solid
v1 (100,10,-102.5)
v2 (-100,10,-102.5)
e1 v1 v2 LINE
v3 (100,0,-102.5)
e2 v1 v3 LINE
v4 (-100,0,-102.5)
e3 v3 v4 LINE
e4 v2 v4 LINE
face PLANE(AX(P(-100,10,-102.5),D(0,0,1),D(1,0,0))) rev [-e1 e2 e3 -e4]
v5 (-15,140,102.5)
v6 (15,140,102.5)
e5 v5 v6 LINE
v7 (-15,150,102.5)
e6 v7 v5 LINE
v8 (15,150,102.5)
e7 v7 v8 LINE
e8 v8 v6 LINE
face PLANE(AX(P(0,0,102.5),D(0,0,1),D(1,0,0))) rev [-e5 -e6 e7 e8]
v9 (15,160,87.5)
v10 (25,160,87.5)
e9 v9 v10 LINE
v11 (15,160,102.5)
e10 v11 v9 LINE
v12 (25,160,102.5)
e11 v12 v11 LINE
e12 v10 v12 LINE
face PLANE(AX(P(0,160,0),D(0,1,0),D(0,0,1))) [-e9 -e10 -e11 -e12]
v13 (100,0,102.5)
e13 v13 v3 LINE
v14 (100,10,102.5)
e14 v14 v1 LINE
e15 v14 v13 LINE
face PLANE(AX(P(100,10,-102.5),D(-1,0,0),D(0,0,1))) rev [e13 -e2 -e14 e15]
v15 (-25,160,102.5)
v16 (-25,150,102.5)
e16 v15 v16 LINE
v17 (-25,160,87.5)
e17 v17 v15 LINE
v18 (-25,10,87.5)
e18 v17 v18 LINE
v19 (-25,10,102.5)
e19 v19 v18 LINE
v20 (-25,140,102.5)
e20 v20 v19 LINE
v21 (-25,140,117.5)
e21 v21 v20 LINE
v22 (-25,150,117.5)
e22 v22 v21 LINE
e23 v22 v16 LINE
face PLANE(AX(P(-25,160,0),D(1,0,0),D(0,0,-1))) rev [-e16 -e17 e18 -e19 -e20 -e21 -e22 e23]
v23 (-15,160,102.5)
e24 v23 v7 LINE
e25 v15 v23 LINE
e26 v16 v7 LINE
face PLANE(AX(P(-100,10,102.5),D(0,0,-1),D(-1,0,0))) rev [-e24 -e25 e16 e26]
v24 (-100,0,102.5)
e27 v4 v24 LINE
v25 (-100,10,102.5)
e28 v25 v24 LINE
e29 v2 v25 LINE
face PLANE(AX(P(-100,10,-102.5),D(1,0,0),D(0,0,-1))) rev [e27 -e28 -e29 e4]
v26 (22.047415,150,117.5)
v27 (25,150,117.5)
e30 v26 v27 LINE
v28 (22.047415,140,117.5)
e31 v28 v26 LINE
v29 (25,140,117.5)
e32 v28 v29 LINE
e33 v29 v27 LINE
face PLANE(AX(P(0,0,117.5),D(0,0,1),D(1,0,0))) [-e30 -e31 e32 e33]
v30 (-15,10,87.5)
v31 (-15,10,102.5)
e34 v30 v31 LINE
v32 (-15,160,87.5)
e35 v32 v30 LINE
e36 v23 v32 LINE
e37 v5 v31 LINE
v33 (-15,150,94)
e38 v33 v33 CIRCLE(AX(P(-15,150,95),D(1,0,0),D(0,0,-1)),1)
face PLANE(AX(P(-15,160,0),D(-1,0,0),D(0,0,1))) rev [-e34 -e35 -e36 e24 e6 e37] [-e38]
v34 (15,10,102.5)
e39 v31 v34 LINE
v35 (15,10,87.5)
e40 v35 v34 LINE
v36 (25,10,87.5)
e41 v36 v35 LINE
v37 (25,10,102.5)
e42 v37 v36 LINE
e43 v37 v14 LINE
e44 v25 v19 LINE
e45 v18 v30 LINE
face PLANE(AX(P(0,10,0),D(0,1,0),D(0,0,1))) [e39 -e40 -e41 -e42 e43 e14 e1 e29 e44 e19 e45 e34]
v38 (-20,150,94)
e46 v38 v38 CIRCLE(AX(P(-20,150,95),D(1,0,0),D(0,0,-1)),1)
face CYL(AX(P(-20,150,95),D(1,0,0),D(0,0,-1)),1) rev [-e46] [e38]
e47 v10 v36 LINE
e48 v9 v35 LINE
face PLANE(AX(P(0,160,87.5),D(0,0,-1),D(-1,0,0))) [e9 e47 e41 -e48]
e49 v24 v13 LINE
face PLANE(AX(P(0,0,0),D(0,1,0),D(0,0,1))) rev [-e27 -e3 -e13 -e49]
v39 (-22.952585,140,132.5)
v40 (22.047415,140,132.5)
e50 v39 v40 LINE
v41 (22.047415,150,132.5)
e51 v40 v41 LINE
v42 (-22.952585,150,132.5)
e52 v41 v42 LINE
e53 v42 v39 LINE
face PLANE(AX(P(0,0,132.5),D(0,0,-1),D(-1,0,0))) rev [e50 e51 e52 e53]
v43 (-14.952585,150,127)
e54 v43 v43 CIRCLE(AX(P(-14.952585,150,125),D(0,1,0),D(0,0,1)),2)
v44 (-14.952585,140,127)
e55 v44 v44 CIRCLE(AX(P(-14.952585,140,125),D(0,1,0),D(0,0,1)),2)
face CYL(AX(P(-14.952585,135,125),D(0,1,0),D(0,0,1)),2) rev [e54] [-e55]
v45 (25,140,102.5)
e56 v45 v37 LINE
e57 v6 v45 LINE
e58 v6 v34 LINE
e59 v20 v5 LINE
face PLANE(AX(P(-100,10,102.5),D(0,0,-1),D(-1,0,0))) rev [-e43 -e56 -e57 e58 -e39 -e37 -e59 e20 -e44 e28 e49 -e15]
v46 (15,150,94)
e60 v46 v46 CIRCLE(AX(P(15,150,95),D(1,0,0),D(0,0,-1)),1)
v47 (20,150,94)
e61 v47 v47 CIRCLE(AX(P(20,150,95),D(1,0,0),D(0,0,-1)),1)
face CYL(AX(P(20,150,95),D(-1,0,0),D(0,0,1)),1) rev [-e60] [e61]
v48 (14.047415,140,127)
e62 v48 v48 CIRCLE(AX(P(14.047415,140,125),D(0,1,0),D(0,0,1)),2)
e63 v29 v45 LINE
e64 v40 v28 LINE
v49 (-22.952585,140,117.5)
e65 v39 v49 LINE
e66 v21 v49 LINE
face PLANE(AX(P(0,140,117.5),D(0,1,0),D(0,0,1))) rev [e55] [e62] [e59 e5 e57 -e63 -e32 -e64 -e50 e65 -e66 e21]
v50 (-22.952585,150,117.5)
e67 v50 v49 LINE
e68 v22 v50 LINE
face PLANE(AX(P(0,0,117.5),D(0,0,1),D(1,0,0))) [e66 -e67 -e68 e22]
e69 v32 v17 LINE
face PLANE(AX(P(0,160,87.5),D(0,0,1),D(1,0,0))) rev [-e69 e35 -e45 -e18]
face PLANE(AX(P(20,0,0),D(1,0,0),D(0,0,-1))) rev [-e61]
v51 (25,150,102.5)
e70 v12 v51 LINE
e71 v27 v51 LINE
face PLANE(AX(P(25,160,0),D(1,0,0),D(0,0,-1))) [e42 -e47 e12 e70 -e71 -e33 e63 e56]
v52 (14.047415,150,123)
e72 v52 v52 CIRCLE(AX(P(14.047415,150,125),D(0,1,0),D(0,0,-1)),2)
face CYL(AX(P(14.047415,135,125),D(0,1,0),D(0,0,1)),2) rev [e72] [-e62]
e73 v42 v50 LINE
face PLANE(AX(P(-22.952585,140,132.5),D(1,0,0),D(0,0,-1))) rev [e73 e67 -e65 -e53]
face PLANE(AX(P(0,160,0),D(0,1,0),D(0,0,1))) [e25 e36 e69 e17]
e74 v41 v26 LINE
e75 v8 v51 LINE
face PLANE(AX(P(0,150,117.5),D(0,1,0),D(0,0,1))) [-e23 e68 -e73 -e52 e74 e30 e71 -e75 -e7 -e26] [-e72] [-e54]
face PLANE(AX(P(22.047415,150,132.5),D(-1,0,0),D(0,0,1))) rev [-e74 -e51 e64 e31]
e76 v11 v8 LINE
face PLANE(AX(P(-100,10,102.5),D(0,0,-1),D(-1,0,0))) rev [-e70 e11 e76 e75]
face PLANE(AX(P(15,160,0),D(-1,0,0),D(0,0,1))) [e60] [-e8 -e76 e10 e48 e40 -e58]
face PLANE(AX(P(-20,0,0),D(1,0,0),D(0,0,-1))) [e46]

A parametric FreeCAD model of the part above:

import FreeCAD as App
import Part
import Sketcher

V = App.Vector


def add_polygon(sketch, points):
    """Adds a closed chain of lines whose ends are joined by coincident constraints."""
    first, n = sketch.GeometryCount, len(points)
    for a, b in zip(points, points[1:] + points[:1]):
        sketch.addGeometry(Part.LineSegment(App.Vector(*a, 0), App.Vector(*b, 0)), False)
    for i in range(n):
        sketch.addConstraint(Sketcher.Constraint("Coincident", first + i, 2, first + (i + 1) % n, 1))

doc = App.newDocument("Part")
body = doc.addObject("PartDesign::Body", "Body")

# Sketch on XZ plane
sketch1 = body.newObject("Sketcher::SketchObject", "Sketch")
sketch1.AttachmentSupport = (doc.getObject("XZ_Plane"), [""])
sketch1.MapMode = "FlatFace"
add_polygon(sketch1, [(-100, -102), (-100, 102), (100, 102), (100, -102)])  # lines 0-3
sketch1.addConstraint([
    Sketcher.Constraint("Vertical", 0),
    Sketcher.Constraint("Horizontal", 1),
    Sketcher.Constraint("Vertical", 2),
    Sketcher.Constraint("Horizontal", 3),
    Sketcher.Constraint("Symmetric", 0, 2, 2, 2, -1, 1),
    Sketcher.Constraint("DistanceX", 1, 1, 1, 2, 200.0),
    Sketcher.Constraint("DistanceY", 0, 1, 0, 2, 205.0),
])
pad1 = body.newObject("PartDesign::Pad", "Pad")
pad1.Profile = sketch1
pad1.Length = 10
pad1.Reversed = True

# Sketch on XZ plane
sketch2 = body.newObject("Sketcher::SketchObject", "Sketch001")
sketch2.AttachmentSupport = (doc.getObject("XZ_Plane"), [""])
sketch2.MapMode = "FlatFace"
add_polygon(sketch2, [(-25, 88), (-25, 102), (-15, 102), (-15, 88)])  # lines 0-3
add_polygon(sketch2, [(15, 88), (15, 102), (25, 102), (25, 88)])  # lines 4-7
sketch2.addConstraint([
    Sketcher.Constraint("Vertical", 0),
    Sketcher.Constraint("Horizontal", 1),
    Sketcher.Constraint("Vertical", 2),
    Sketcher.Constraint("Horizontal", 3),
    Sketcher.Constraint("Vertical", 4),
    Sketcher.Constraint("Horizontal", 5),
    Sketcher.Constraint("Vertical", 6),
    Sketcher.Constraint("Horizontal", 7),
    Sketcher.Constraint("Symmetric", 1, 2, 4, 2, -2),
    Sketcher.Constraint("Symmetric", 3, 2, 6, 2, -2),
    Sketcher.Constraint("DistanceX", 1, 1, 1, 2, 10.0),
    Sketcher.Constraint("DistanceY", 0, 1, 0, 2, 15.0),
    Sketcher.Constraint("DistanceX", 0, 2, -1, 1, 25.0),
    Sketcher.Constraint("DistanceY", -1, 1, 0, 2, 102.5),
])
pad2 = body.newObject("PartDesign::Pad", "Pad001")
pad2.Profile = sketch2
pad2.Length = 160
pad2.Reversed = True

# Sketch on XY plane
sketch3 = body.newObject("Sketcher::SketchObject", "Sketch002")
sketch3.AttachmentSupport = (doc.getObject("XY_Plane"), [""])
sketch3.MapMode = "FlatFace"
sketch3.AttachmentOffset = App.Placement(V(0, 0, 102.5), App.Rotation())
add_polygon(sketch3, [(-25, 150), (-25, 140), (25, 140), (25, 150)])  # lines 0-3
sketch3.addConstraint([
    Sketcher.Constraint("Vertical", 0),
    Sketcher.Constraint("Horizontal", 1),
    Sketcher.Constraint("Vertical", 2),
    Sketcher.Constraint("Horizontal", 3),
    Sketcher.Constraint("DistanceX", 1, 1, 1, 2, 50.0),
    Sketcher.Constraint("DistanceY", 0, 2, 0, 1, 10.0),
    Sketcher.Constraint("DistanceX", 0, 2, -1, 1, 25.0),
    Sketcher.Constraint("DistanceY", -1, 1, 0, 2, 140.0),
])
pad3 = body.newObject("PartDesign::Pad", "Pad002")
pad3.Profile = sketch3
pad3.Length = 15

# Sketch on XY plane
sketch4 = body.newObject("Sketcher::SketchObject", "Sketch003")
sketch4.AttachmentSupport = (doc.getObject("XY_Plane"), [""])
sketch4.MapMode = "FlatFace"
sketch4.AttachmentOffset = App.Placement(V(0, 0, 117.5), App.Rotation())
add_polygon(sketch4, [(-23, 150), (-23, 140), (22, 140), (22, 150)])  # lines 0-3
sketch4.addConstraint([
    Sketcher.Constraint("Vertical", 0),
    Sketcher.Constraint("Horizontal", 1),
    Sketcher.Constraint("Vertical", 2),
    Sketcher.Constraint("Horizontal", 3),
    Sketcher.Constraint("DistanceX", 1, 1, 1, 2, 45.0),
    Sketcher.Constraint("DistanceY", 0, 2, 0, 1, 10.0),
    Sketcher.Constraint("DistanceY", -1, 1, 0, 2, 140.0),
    Sketcher.Constraint("DistanceX", 0, 2, -1, 1, 22.952585),
])
pad4 = body.newObject("PartDesign::Pad", "Pad003")
pad4.Profile = sketch4
pad4.Length = 15

# Sketch on XZ plane
sketch5 = body.newObject("Sketcher::SketchObject", "Sketch004")
sketch5.AttachmentSupport = (doc.getObject("XZ_Plane"), [""])
sketch5.MapMode = "FlatFace"
sketch5.AttachmentOffset = App.Placement(V(0, 0, -150), App.Rotation())
sketch5.addGeometry([
    Part.Circle(V(-15, 125, 0), V(0, 0, 1), 2),
    Part.Circle(V(14, 125, 0), V(0, 0, 1), 2),
], False)
sketch5.addConstraint([
    Sketcher.Constraint("Equal", 0, 1),
    Sketcher.Constraint("Horizontal", 0, 3, 1, 3),
    Sketcher.Constraint("Diameter", 0, 4.0),
    Sketcher.Constraint("DistanceY", -1, 1, 0, 3, 125.0),
    Sketcher.Constraint("DistanceX", 0, 3, 1, 3, 29.0),
    Sketcher.Constraint("DistanceX", 0, 3, -1, 1, 14.952585),
])
pocket1 = body.newObject("PartDesign::Pocket", "Pocket")
pocket1.Profile = sketch5
pocket1.Length = 15
pocket1.Reversed = True

# Sketch on YZ plane
sketch6 = body.newObject("Sketcher::SketchObject", "Sketch005")
sketch6.AttachmentSupport = (doc.getObject("YZ_Plane"), [""])
sketch6.MapMode = "FlatFace"
sketch6.AttachmentOffset = App.Placement(V(0, 0, -15), App.Rotation())
sketch6.addGeometry(Part.Circle(V(150, 95, 0), V(0, 0, 1), 1), False)
sketch6.addConstraint([
    Sketcher.Constraint("Diameter", 0, 2.0),
    Sketcher.Constraint("DistanceX", -1, 1, 0, 3, 150.0),
    Sketcher.Constraint("DistanceY", -1, 1, 0, 3, 95.0),
])
pocket2 = body.newObject("PartDesign::Pocket", "Pocket001")
pocket2.Profile = sketch6
pocket2.Length = 5

# Sketch on YZ plane
sketch7 = body.newObject("Sketcher::SketchObject", "Sketch006")
sketch7.AttachmentSupport = (doc.getObject("YZ_Plane"), [""])
sketch7.MapMode = "FlatFace"
sketch7.AttachmentOffset = App.Placement(V(0, 0, 20), App.Rotation())
sketch7.addGeometry(Part.Circle(V(150, 95, 0), V(0, 0, 1), 1), False)
sketch7.addConstraint([
    Sketcher.Constraint("Diameter", 0, 2.0),
    Sketcher.Constraint("DistanceX", -1, 1, 0, 3, 150.0),
    Sketcher.Constraint("DistanceY", -1, 1, 0, 3, 95.0),
])
pocket3 = body.newObject("PartDesign::Pocket", "Pocket002")
pocket3.Profile = sketch7
pocket3.Length = 5

doc.recompute()
